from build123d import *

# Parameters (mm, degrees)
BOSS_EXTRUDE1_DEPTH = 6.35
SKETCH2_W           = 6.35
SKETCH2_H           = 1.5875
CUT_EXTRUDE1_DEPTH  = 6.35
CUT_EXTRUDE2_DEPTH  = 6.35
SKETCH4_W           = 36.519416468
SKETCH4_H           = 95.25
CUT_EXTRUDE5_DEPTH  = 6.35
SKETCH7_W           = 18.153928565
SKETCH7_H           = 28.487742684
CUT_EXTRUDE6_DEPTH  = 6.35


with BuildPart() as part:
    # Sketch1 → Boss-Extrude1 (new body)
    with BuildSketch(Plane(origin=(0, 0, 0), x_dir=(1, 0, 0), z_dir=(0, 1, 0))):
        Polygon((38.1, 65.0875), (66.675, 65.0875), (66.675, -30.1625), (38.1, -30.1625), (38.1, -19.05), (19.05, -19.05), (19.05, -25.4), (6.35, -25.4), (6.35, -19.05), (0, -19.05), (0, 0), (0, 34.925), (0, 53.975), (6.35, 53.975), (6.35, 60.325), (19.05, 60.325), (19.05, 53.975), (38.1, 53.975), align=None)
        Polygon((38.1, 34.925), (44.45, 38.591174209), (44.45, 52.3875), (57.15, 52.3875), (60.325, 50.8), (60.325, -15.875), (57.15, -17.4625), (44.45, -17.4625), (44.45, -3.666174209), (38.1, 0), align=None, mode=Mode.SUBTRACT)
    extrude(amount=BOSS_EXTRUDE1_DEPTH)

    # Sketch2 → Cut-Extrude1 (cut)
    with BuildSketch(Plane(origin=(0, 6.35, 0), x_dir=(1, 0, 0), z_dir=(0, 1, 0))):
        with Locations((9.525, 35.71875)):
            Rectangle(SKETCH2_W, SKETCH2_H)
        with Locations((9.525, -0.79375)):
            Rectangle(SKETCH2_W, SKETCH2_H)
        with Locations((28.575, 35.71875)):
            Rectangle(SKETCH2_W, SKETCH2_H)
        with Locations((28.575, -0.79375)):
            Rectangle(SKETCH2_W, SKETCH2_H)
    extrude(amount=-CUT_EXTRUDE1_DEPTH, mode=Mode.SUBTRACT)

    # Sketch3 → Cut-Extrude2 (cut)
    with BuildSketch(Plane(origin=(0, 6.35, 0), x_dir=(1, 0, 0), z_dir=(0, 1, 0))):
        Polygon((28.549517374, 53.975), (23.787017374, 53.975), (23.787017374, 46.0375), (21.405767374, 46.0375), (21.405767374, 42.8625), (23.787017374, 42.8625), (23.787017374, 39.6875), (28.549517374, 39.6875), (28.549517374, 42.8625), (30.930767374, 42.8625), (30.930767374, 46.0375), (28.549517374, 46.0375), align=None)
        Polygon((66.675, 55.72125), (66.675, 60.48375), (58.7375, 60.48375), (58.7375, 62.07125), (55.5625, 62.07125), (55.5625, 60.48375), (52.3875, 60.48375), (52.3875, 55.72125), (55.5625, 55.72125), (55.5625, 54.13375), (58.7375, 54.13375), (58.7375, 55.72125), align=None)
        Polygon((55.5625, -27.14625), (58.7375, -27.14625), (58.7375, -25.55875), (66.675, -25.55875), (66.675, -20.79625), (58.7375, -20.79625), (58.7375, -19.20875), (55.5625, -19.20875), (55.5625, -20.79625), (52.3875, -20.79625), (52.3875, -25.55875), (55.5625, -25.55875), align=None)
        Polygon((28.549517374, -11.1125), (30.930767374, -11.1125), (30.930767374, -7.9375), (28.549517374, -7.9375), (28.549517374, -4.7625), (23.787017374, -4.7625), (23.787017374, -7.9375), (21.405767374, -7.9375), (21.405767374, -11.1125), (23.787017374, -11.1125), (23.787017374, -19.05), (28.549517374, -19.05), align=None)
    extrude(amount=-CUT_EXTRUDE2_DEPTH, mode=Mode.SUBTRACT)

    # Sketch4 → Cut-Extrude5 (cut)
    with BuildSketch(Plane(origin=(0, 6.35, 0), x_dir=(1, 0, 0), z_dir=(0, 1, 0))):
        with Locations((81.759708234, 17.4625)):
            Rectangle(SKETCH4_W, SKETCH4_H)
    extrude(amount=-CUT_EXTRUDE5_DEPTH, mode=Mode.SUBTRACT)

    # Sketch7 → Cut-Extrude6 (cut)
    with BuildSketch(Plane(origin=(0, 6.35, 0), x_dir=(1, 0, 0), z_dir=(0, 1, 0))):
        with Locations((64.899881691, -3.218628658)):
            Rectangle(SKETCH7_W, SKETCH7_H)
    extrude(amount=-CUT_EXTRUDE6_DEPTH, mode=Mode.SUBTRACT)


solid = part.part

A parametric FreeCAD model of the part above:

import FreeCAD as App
import Part
import Sketcher
from FreeCAD import Vector
Q = App.Units.Quantity


def add_polygon(sketch, points):
    """Adds a closed chain of lines whose ends are joined by coincident constraints."""
    first, n = sketch.GeometryCount, len(points)
    for a, b in zip(points, points[1:] + points[:1]):
        sketch.addGeometry(Part.LineSegment(App.Vector(*a, 0), App.Vector(*b, 0)), False)
    for i in range(n):
        sketch.addConstraint(Sketcher.Constraint("Coincident", first + i, 2, first + (i + 1) % n, 1))

doc = App.newDocument("Part")
body = doc.addObject("PartDesign::Body", "Body")

# Sketch on XZ plane
sketch1 = doc.addObject("Sketcher::SketchObject", "Sketch")
body.addObject(sketch1)
sketch1.AttachmentSupport = (doc.XZ_Plane, [""])
sketch1.MapMode = "FlatFace"
add_polygon(sketch1, [(66.7, -65.1), (38.1, -65.1), (38.1, -54), (19.1, -54), (19.1, -60.3), (6.3, -60.3), (6.3, -54), (0, -54), (0, 19.1), (6.3, 19.1), (6.3, 25.4), (19.1, 25.4), (19.1, 19.1), (38.1, 19.1), (38.1, 30.2), (66.7, 30.2)])  # lines 0-15
add_polygon(sketch1, [(38.1, -34.9), (44.5, -38.6), (44.5, -52.4), (57.1, -52.4), (60.3, -50.8), (60.3, 15.9), (57.1, 17.5), (44.5, 17.5), (44.5, 3.7), (38.1, 0)])  # lines 16-25
sketch1.addConstraint([
    Sketcher.Constraint("Horizontal", 0),
    Sketcher.Constraint("Vertical", 1),
    Sketcher.Constraint("Horizontal", 2),
    Sketcher.Constraint("Vertical", 3),
    Sketcher.Constraint("Horizontal", 4),
    Sketcher.Constraint("Vertical", 5),
    Sketcher.Constraint("Horizontal", 6),
    Sketcher.Constraint("Vertical", 7),
    Sketcher.Constraint("Horizontal", 8),
    Sketcher.Constraint("Vertical", 9),
    Sketcher.Constraint("Horizontal", 10),
    Sketcher.Constraint("Vertical", 11),
    Sketcher.Constraint("Horizontal", 12),
    Sketcher.Constraint("Vertical", 13),
    Sketcher.Constraint("Horizontal", 14),
    Sketcher.Constraint("Vertical", 15),
    Sketcher.Constraint("Vertical", 17),
    Sketcher.Constraint("Horizontal", 18),
    Sketcher.Constraint("Vertical", 20),
    Sketcher.Constraint("Horizontal", 22),
    Sketcher.Constraint("Vertical", 23),
    Sketcher.Constraint("Vertical", 25),
    Sketcher.Constraint("PointOnObject", 6, 2, -2),
    Sketcher.Constraint("PointOnObject", 24, 2, -1),
    Sketcher.Constraint("Horizontal", 2, 2, 5, 2),
    Sketcher.Constraint("Horizontal", 8, 2, 11, 2),
    Sketcher.Constraint("Vertical", 5, 2, 8, 2),
    Sketcher.Constraint("Vertical", 3, 2, 10, 2),
    Sketcher.Constraint("Vertical", 1, 2, 12, 2),
    Sketcher.Constraint("Vertical", 18, 2, 21, 2),
    Sketcher.Constraint("Vertical", 17, 2, 22, 2),
    Sketcher.Constraint("Vertical", 13, 2, 24, 2),
    Sketcher.Constraint("Equal", 10, 18),
    Sketcher.Constraint("Equal", 8, 3),
    Sketcher.Constraint("Equal", 5, 9),
    Sketcher.Constraint("Equal", 1, 13),
    Sketcher.Constraint("Equal", 17, 23),
    Sketcher.Constraint("Equal", 19, 21),
    Sketcher.Constraint("Equal", 16, 24),
    Sketcher.Constraint("DistanceX", 4, 2, 4, 1, Q("0.5 in")),
    Sketcher.Constraint("DistanceY", -1, 1, 9, 2, Q("1 in")),
    Sketcher.Constraint("DistanceY", 19, 2, -1, 1, Q("2 in")),
    Sketcher.Constraint("Angle", 16, Q("-30 deg")),
    Sketcher.Constraint("DistanceX", 2, 2, 16, 2, Q("1 in")),
    Sketcher.Constraint("DistanceX", 2, 2, 2, 1, Q("0.75 in")),
    Sketcher.Constraint("DistanceX", 6, 2, 6, 1, Q("0.25 in")),
    Sketcher.Constraint("DistanceY", 15, 2, 15, 1, Q("3.75 in")),
    Sketcher.Constraint("DistanceY", 0, 2, 17, 2, Q("0.5 in")),
    Sketcher.Constraint("DistanceY", 21, 2, 14, 2, Q("0.5 in")),
    Sketcher.Constraint("DistanceX", 0, 2, 0, 1, Q("1.125 in")),
    Sketcher.Constraint("DistanceY", 1, 1, 1, 2, Q("0.4375 in")),
    Sketcher.Constraint("DistanceX", 19, 2, 15, 2, Q("0.25 in")),
])
pad1 = doc.addObject("PartDesign::Pad", "Pad")
body.addObject(pad1)
pad1.Profile = sketch1
pad1.Length = Q("0.25 in")
pad1.Reversed = True

# Sketch on XZ plane
sketch2 = doc.addObject("Sketcher::SketchObject", "Sketch001")
body.addObject(sketch2)
sketch2.AttachmentSupport = (doc.XZ_Plane, [""])
sketch2.MapMode = "FlatFace"
sketch2.AttachmentOffset = App.Placement(Vector(0, 0, -0.25 * 25.4), App.Rotation())
add_polygon(sketch2, [(6.3, -36.5), (6.3, -34.9), (12.7, -34.9), (12.7, -36.5)])  # lines 0-3
add_polygon(sketch2, [(6.3, 0), (6.3, 1.6), (12.7, 1.6), (12.7, 0)])  # lines 4-7
add_polygon(sketch2, [(25.4, -36.5), (25.4, -34.9), (31.8, -34.9), (31.8, -36.5)])  # lines 8-11
add_polygon(sketch2, [(25.4, 0), (25.4, 1.6), (31.8, 1.6), (31.8, 0)])  # lines 12-15
sketch2.addConstraint([
    Sketcher.Constraint("Vertical", 0),
    Sketcher.Constraint("Horizontal", 1),
    Sketcher.Constraint("Vertical", 2),
    Sketcher.Constraint("Horizontal", 3),
    Sketcher.Constraint("Vertical", 4),
    Sketcher.Constraint("Horizontal", 5),
    Sketcher.Constraint("Vertical", 6),
    Sketcher.Constraint("Horizontal", 7),
    Sketcher.Constraint("Vertical", 8),
    Sketcher.Constraint("Horizontal", 9),
    Sketcher.Constraint("Vertical", 10),
    Sketcher.Constraint("Horizontal", 11),
    Sketcher.Constraint("Vertical", 12),
    Sketcher.Constraint("Horizontal", 13),
    Sketcher.Constraint("Vertical", 14),
    Sketcher.Constraint("Horizontal", 15),
    Sketcher.Constraint("PointOnObject", 6, 2, -1),
    Sketcher.Constraint("PointOnObject", 14, 2, -1),
    Sketcher.Constraint("Horizontal", 1, 2, 8, 2),
    Sketcher.Constraint("Horizontal", 3, 2, 10, 2),
    Sketcher.Constraint("Horizontal", 5, 2, 12, 2),
    Sketcher.Constraint("Vertical", 3, 2, 4, 2),
    Sketcher.Constraint("Vertical", 2, 2, 5, 2),
    Sketcher.Constraint("Vertical", 11, 2, 12, 2),
    Sketcher.Constraint("Vertical", 10, 2, 13, 2),
    Sketcher.Constraint("Equal", 7, 9),
    Sketcher.Constraint("Equal", 2, 4),
    Sketcher.Constraint("DistanceX", -1, 1, 8, 2, Q("1 in")),
    Sketcher.Constraint("DistanceX", 0, 2, 9, 2, Q("1 in")),
    Sketcher.Constraint("DistanceX", 1, 1, 1, 2, Q("0.25 in")),
    Sketcher.Constraint("DistanceY", 3, 2, 4, 2, Q("1.5 in")),
    Sketcher.Constraint("DistanceY", 0, 1, 0, 2, Q("0.0625 in")),
])
pocket1 = doc.addObject("PartDesign::Pocket", "Pocket")
body.addObject(pocket1)
pocket1.Profile = sketch2
pocket1.Length = Q("0.25 in")
pocket1.Reversed = True

# Sketch on XZ plane
sketch3 = doc.addObject("Sketcher::SketchObject", "Sketch002")
body.addObject(sketch3)
sketch3.AttachmentSupport = (doc.XZ_Plane, [""])
sketch3.MapMode = "FlatFace"
sketch3.AttachmentOffset = App.Placement(Vector(0, 0, -0.25 * 25.4), App.Rotation())
add_polygon(sketch3, [(28.5, -54), (23.8, -54), (23.8, -46), (21.4, -46), (21.4, -42.9), (23.8, -42.9), (23.8, -39.7), (28.5, -39.7), (28.5, -42.9), (30.9, -42.9), (30.9, -46), (28.5, -46)])  # lines 0-11
add_polygon(sketch3, [(66.7, -55.7), (66.7, -60.5), (58.7, -60.5), (58.7, -62.1), (55.6, -62.1), (55.6, -60.5), (52.4, -60.5), (52.4, -55.7), (55.6, -55.7), (55.6, -54.1), (58.7, -54.1), (58.7, -55.7)])  # lines 12-23
add_polygon(sketch3, [(55.6, 27.1), (58.7, 27.1), (58.7, 25.6), (66.7, 25.6), (66.7, 20.8), (58.7, 20.8), (58.7, 19.2), (55.6, 19.2), (55.6, 20.8), (52.4, 20.8), (52.4, 25.6), (55.6, 25.6)])  # lines 24-35
add_polygon(sketch3, [(28.5, 11.1), (30.9, 11.1), (30.9, 7.9), (28.5, 7.9), (28.5, 4.8), (23.8, 4.8), (23.8, 7.9), (21.4, 7.9), (21.4, 11.1), (23.8, 11.1), (23.8, 19.1), (28.5, 19.1)])  # lines 36-47
sketch3.addConstraint([
    Sketcher.Constraint("Horizontal", 0),
    Sketcher.Constraint("Vertical", 1),
    Sketcher.Constraint("Horizontal", 2),
    Sketcher.Constraint("Vertical", 3),
    Sketcher.Constraint("Horizontal", 4),
    Sketcher.Constraint("Vertical", 5),
    Sketcher.Constraint("Horizontal", 6),
    Sketcher.Constraint("Vertical", 7),
    Sketcher.Constraint("Horizontal", 8),
    Sketcher.Constraint("Vertical", 9),
    Sketcher.Constraint("Horizontal", 10),
    Sketcher.Constraint("Vertical", 11),
    Sketcher.Constraint("Vertical", 12),
    Sketcher.Constraint("Horizontal", 13),
    Sketcher.Constraint("Vertical", 14),
    Sketcher.Constraint("Horizontal", 15),
    Sketcher.Constraint("Vertical", 16),
    Sketcher.Constraint("Horizontal", 17),
    Sketcher.Constraint("Vertical", 18),
    Sketcher.Constraint("Horizontal", 19),
    Sketcher.Constraint("Vertical", 20),
    Sketcher.Constraint("Horizontal", 21),
    Sketcher.Constraint("Vertical", 22),
    Sketcher.Constraint("Horizontal", 23),
    Sketcher.Constraint("Horizontal", 24),
    Sketcher.Constraint("Vertical", 25),
    Sketcher.Constraint("Horizontal", 26),
    Sketcher.Constraint("Vertical", 27),
    Sketcher.Constraint("Horizontal", 28),
    Sketcher.Constraint("Vertical", 29),
    Sketcher.Constraint("Horizontal", 30),
    Sketcher.Constraint("Vertical", 31),
    Sketcher.Constraint("Horizontal", 32),
    Sketcher.Constraint("Vertical", 33),
    Sketcher.Constraint("Horizontal", 34),
    Sketcher.Constraint("Vertical", 35),
    Sketcher.Constraint("Horizontal", 36),
    Sketcher.Constraint("Vertical", 37),
    Sketcher.Constraint("Horizontal", 38),
    Sketcher.Constraint("Vertical", 39),
    Sketcher.Constraint("Horizontal", 40),
    Sketcher.Constraint("Vertical", 41),
    Sketcher.Constraint("Horizontal", 42),
    Sketcher.Constraint("Vertical", 43),
    Sketcher.Constraint("Horizontal", 44),
    Sketcher.Constraint("Vertical", 45),
    Sketcher.Constraint("Horizontal", 46),
    Sketcher.Constraint("Vertical", 47),
    Sketcher.Constraint("Horizontal", 4, 2, 7, 2),
    Sketcher.Constraint("Horizontal", 2, 2, 9, 2),
    Sketcher.Constraint("Horizontal", 13, 2, 16, 2),
    Sketcher.Constraint("Horizontal", 19, 2, 22, 2),
    Sketcher.Constraint("Horizontal", 28, 2, 31, 2),
    Sketcher.Constraint("Horizontal", 26, 2, 33, 2),
    Sketcher.Constraint("Horizontal", 38, 2, 41, 2),
    Sketcher.Constraint("Horizontal", 36, 2, 43, 2),
    Sketcher.Constraint("Vertical", 1, 2, 4, 2),
    Sketcher.Constraint("Vertical", 7, 2, 10, 2),
    Sketcher.Constraint("Vertical", 16, 2, 19, 2),
    Sketcher.Constraint("Vertical", 14, 2, 21, 2),
    Sketcher.Constraint("Vertical", 22, 2, 24, 2),
    Sketcher.Constraint("Vertical", 23, 2, 26, 2),
    Sketcher.Constraint("Vertical", 25, 2, 28, 2),
    Sketcher.Constraint("Vertical", 20, 2, 30, 2),
    Sketcher.Constraint("Vertical", 18, 2, 32, 2),
    Sketcher.Constraint("Vertical", 31, 2, 34, 2),
    Sketcher.Constraint("Vertical", 9, 2, 36, 2),
    Sketcher.Constraint("Vertical", 11, 2, 38, 2),
    Sketcher.Constraint("Vertical", 5, 2, 40, 2),
    Sketcher.Constraint("Vertical", 3, 2, 42, 2),
    Sketcher.Constraint("Vertical", 41, 2, 44, 2),
    Sketcher.Constraint("Vertical", 39, 2, 46, 2),
    Sketcher.Constraint("Equal", 4, 8),
    Sketcher.Constraint("Equal", 15, 17),
    Sketcher.Constraint("Equal", 28, 1),
    Sketcher.Constraint("Equal", 34, 3),
    Sketcher.Constraint("Equal", 3, 5),
    Sketcher.Constraint("Equal", 46, 12),
    Sketcher.Constraint("Equal", 16, 20),
    Sketcher.Constraint("Equal", 22, 25),
    Sketcher.Constraint("Equal", 18, 27),
    Sketcher.Constraint("Equal", 25, 29),
    Sketcher.Constraint("Equal", 9, 37),
    Sketcher.Constraint("Equal", 37, 39),
    Sketcher.Constraint("Equal", 11, 45),
    Sketcher.Constraint("DistanceX", 0, 2, 0, 1, Q("0.1875 in")),
    Sketcher.Constraint("DistanceX", 2, 2, 2, 1, Q("0.09375 in")),
    Sketcher.Constraint("DistanceX", 13, 2, 13, 1, Q("0.3125 in")),
    Sketcher.Constraint("DistanceX", 15, 2, 15, 1, Q("0.125 in")),
    Sketcher.Constraint("DistanceY", 14, 2, 14, 1, Q("0.0625 in")),
    Sketcher.Constraint("DistanceY", -1, 1, 45, 2, Q("0.75 in")),
    Sketcher.Constraint("DistanceY", 0, 2, -1, 1, Q("2.125 in")),
    Sketcher.Constraint("DistanceX", -1, 1, 12, 2, Q("2.625 in")),
    Sketcher.Constraint("DistanceY", 12, 2, -1, 1, Q("60.48375 mm")),
    Sketcher.Constraint("DistanceY", -1, 1, 24, 2, Q("27.14625 mm")),
    Sketcher.Constraint("DistanceX", -1, 1, 0, 2, Q("23.787017 mm")),
])
pocket2 = doc.addObject("PartDesign::Pocket", "Pocket001")
body.addObject(pocket2)
pocket2.Profile = sketch3
pocket2.Length = Q("0.25 in")
pocket2.Reversed = True

# Sketch on XZ plane
sketch4 = doc.addObject("Sketcher::SketchObject", "Sketch003")
body.addObject(sketch4)
sketch4.AttachmentSupport = (doc.XZ_Plane, [""])
sketch4.MapMode = "FlatFace"
sketch4.AttachmentOffset = App.Placement(Vector(0, 0, -0.25 * 25.4), App.Rotation())
add_polygon(sketch4, [(64, -65), (64, 30), (100, 30), (100, -65)])  # lines 0-3
sketch4.addConstraint([
    Sketcher.Constraint("Vertical", 0),
    Sketcher.Constraint("Horizontal", 1),
    Sketcher.Constraint("Vertical", 2),
    Sketcher.Constraint("Horizontal", 3),
    Sketcher.Constraint("DistanceY", 0, 1, 0, 2, Q("3.75 in")),
    Sketcher.Constraint("DistanceX", -1, 1, 0, 2, Q("2.5 in")),
    Sketcher.Constraint("DistanceY", -1, 1, 0, 2, Q("1.1875 in")),
    Sketcher.Constraint("DistanceX", 1, 1, 1, 2, Q("36.519416 mm")),
])
pocket3 = doc.addObject("PartDesign::Pocket", "Pocket002")
body.addObject(pocket3)
pocket3.Profile = sketch4
pocket3.Length = Q("0.25 in")
pocket3.Reversed = True

# Sketch on XZ plane
sketch5 = doc.addObject("Sketcher::SketchObject", "Sketch004")
body.addObject(sketch5)
sketch5.AttachmentSupport = (doc.XZ_Plane, [""])
sketch5.MapMode = "FlatFace"
sketch5.AttachmentOffset = App.Placement(Vector(0, 0, -0.25 * 25.4), App.Rotation())
add_polygon(sketch5, [(56, -11), (56, 17), (74, 17), (74, -11)])  # lines 0-3
sketch5.addConstraint([
    Sketcher.Constraint("Vertical", 0),
    Sketcher.Constraint("Horizontal", 1),
    Sketcher.Constraint("Vertical", 2),
    Sketcher.Constraint("Horizontal", 3),
    Sketcher.Constraint("DistanceY", -1, 1, 0, 2, Q("0.6875 in")),
    Sketcher.Constraint("DistanceX", 1, 1, 1, 2, Q("18.153929 mm")),
    Sketcher.Constraint("DistanceY", 0, 1, 0, 2, Q("28.487743 mm")),
    Sketcher.Constraint("DistanceX", -1, 1, 0, 2, Q("55.822917 mm")),
])
pocket4 = doc.addObject("PartDesign::Pocket", "Pocket003")
body.addObject(pocket4)
pocket4.Profile = sketch5
pocket4.Length = Q("0.25 in")
pocket4.Reversed = True

doc.recompute()
